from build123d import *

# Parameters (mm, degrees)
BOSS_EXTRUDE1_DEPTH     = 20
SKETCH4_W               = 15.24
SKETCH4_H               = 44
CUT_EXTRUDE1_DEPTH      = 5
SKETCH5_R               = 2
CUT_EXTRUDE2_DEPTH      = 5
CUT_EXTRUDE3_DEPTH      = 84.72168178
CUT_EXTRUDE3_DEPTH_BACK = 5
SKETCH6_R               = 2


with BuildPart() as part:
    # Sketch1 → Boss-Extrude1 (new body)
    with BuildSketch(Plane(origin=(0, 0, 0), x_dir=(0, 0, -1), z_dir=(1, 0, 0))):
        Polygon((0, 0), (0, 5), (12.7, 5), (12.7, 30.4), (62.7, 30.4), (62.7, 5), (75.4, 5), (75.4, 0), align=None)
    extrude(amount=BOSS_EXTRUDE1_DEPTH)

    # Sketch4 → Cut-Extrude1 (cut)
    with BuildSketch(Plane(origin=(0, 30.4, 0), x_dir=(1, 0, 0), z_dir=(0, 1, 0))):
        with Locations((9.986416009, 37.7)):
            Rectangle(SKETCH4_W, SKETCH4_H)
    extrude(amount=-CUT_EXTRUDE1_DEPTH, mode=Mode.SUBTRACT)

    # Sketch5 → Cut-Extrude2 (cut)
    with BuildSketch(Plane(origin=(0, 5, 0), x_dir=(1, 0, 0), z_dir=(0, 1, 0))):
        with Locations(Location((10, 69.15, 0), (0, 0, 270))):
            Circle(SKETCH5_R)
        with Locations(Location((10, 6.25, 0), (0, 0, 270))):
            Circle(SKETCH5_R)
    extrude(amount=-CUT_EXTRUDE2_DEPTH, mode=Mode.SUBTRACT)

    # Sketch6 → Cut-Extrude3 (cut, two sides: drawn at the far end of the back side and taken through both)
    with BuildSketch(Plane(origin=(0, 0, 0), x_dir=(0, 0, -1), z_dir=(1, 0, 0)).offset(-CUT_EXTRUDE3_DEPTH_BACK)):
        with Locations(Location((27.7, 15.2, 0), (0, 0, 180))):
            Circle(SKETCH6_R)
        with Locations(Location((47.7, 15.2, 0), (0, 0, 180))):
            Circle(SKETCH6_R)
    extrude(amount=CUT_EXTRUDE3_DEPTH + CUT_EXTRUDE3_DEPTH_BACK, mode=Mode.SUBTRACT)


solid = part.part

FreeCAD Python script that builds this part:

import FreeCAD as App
import Part
import Sketcher


def add_polygon(sketch, points):
    """Adds a closed chain of lines whose ends are joined by coincident constraints."""
    first, n = sketch.GeometryCount, len(points)
    for a, b in zip(points, points[1:] + points[:1]):
        sketch.addGeometry(Part.LineSegment(App.Vector(*a, 0), App.Vector(*b, 0)), False)
    for i in range(n):
        sketch.addConstraint(Sketcher.Constraint("Coincident", first + i, 2, first + (i + 1) % n, 1))

doc = App.newDocument("Part")
body = doc.addObject("PartDesign::Body", "Body")

# Sketch on YZ plane
sketch1 = body.newObject("Sketcher::SketchObject", "Sketch")
sketch1.AttachmentSupport = (doc.getObject("YZ_Plane"), [""])
sketch1.MapMode = "FlatFace"
add_polygon(sketch1, [(5, 0), (0, 0), (0, -75), (5, -75), (5, -63), (30, -63), (30, -13), (5, -13)])  # lines 0-7
sketch1.addConstraint(Sketcher.Constraint("Horizontal", 0))
sketch1.addConstraint(Sketcher.Constraint("Vertical", 1))
sketch1.addConstraint(Sketcher.Constraint("Horizontal", 2))
sketch1.addConstraint(Sketcher.Constraint("Vertical", 3))
sketch1.addConstraint(Sketcher.Constraint("Horizontal", 4))
sketch1.addConstraint(Sketcher.Constraint("Vertical", 5))
sketch1.addConstraint(Sketcher.Constraint("Horizontal", 6))
sketch1.addConstraint(Sketcher.Constraint("Vertical", 7))
sketch1.addConstraint(Sketcher.Constraint("Coincident", 0, 2, -1, 1))
sketch1.addConstraint(Sketcher.Constraint("Vertical", 3, 2, 6, 2))
sketch1.addConstraint(Sketcher.Constraint("Equal", 3, 7))
sketch1.addConstraint(Sketcher.Constraint("DistanceX", 0, 2, 0, 1, 5.0))
sketch1.addConstraint(Sketcher.Constraint("DistanceY", 5, 1, 5, 2, 50.0))
sketch1.addConstraint(Sketcher.Constraint("DistanceX", 4, 1, 4, 2, 25.4))
sketch1.addConstraint(Sketcher.Constraint("DistanceY", 1, 2, 1, 1, 75.4))
pad1 = body.newObject("PartDesign::Pad", "Pad")
pad1.Profile = sketch1
pad1.Length = 20

# Sketch on XZ plane
sketch2 = body.newObject("Sketcher::SketchObject", "Sketch001")
sketch2.AttachmentSupport = (doc.getObject("XZ_Plane"), [""])
sketch2.MapMode = "FlatFace"
sketch2.AttachmentOffset = App.Placement(App.Vector(0, 0, -30.4), App.Rotation())
add_polygon(sketch2, [(2, -60), (2, -16), (18, -16), (18, -60)])  # lines 0-3
sketch2.addConstraint(Sketcher.Constraint("Vertical", 0))
sketch2.addConstraint(Sketcher.Constraint("Horizontal", 1))
sketch2.addConstraint(Sketcher.Constraint("Vertical", 2))
sketch2.addConstraint(Sketcher.Constraint("Horizontal", 3))
sketch2.addConstraint(Sketcher.Constraint("DistanceY", 0, 1, 0, 2, 44.0))
sketch2.addConstraint(Sketcher.Constraint("DistanceX", 1, 1, 1, 2, 15.24))
sketch2.addConstraint(Sketcher.Constraint("DistanceY", 0, 2, -1, 1, 15.7))
sketch2.addConstraint(Sketcher.Constraint("DistanceX", -1, 1, 0, 2, 2.366416))
pocket1 = body.newObject("PartDesign::Pocket", "Pocket")
pocket1.Profile = sketch2
pocket1.Length = 5
pocket1.Reversed = True

# Sketch on XZ plane
sketch3 = body.newObject("Sketcher::SketchObject", "Sketch002")
sketch3.AttachmentSupport = (doc.getObject("XZ_Plane"), [""])
sketch3.MapMode = "FlatFace"
sketch3.AttachmentOffset = App.Placement(App.Vector(0, 0, -5), App.Rotation())
sketch3.addGeometry(Part.Circle(App.Vector(10, -69.2, 0), App.Vector(0, 0, 1), 2), False)
sketch3.addGeometry(Part.Circle(App.Vector(10, -6.2, 0), App.Vector(0, 0, 1), 2), False)
sketch3.addConstraint(Sketcher.Constraint("Equal", 0, 1))
sketch3.addConstraint(Sketcher.Constraint("Vertical", 0, 3, 1, 3))
sketch3.addConstraint(Sketcher.Constraint("Diameter", 0, 4.0))
sketch3.addConstraint(Sketcher.Constraint("DistanceX", -1, 1, 0, 3, 10.0))
sketch3.addConstraint(Sketcher.Constraint("DistanceY", 0, 3, 1, 3, 62.9))
sketch3.addConstraint(Sketcher.Constraint("DistanceY", 0, 3, -1, 1, 69.15))
pocket2 = body.newObject("PartDesign::Pocket", "Pocket001")
pocket2.Profile = sketch3
pocket2.Length = 5
pocket2.Reversed = True

# Sketch on YZ plane
sketch4 = body.newObject("Sketcher::SketchObject", "Sketch003")
sketch4.AttachmentSupport = (doc.getObject("YZ_Plane"), [""])
sketch4.MapMode = "FlatFace"
sketch4.addGeometry(Part.Circle(App.Vector(15.2, -27.7, 0), App.Vector(0, 0, 1), 2), False)
sketch4.addGeometry(Part.Circle(App.Vector(15.2, -47.7, 0), App.Vector(0, 0, 1), 2), False)
sketch4.addConstraint(Sketcher.Constraint("Equal", 0, 1))
sketch4.addConstraint(Sketcher.Constraint("Vertical", 0, 3, 1, 3))
sketch4.addConstraint(Sketcher.Constraint("Diameter", 0, 4.0))
sketch4.addConstraint(Sketcher.Constraint("DistanceY", 1, 3, 0, 3, 20.0))
sketch4.addConstraint(Sketcher.Constraint("DistanceX", -1, 1, 0, 3, 15.2))
sketch4.addConstraint(Sketcher.Constraint("DistanceY", 0, 3, -1, 1, 27.7))
pocket3 = body.newObject("PartDesign::Pocket", "Pocket002")
pocket3.Profile = sketch4
pocket3.Type = "ThroughAll"
pocket3.Midplane = True

doc.recompute()
